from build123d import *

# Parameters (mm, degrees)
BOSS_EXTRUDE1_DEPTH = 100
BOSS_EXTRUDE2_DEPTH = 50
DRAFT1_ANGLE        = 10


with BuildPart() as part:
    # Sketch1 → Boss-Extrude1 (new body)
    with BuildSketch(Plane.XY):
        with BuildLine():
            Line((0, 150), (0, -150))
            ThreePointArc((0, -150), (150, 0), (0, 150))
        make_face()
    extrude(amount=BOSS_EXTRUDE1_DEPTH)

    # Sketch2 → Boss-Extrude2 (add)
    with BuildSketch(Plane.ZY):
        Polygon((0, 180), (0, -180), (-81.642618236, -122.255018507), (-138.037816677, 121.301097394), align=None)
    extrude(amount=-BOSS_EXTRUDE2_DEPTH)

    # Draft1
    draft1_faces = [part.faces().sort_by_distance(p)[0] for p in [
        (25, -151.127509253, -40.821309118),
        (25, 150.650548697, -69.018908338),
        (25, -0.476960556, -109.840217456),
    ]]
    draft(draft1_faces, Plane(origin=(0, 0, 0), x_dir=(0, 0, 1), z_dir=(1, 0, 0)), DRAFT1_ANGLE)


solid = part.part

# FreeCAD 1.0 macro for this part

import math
import FreeCAD as App
import Part
import Sketcher
from FreeCAD import Vector


def faces_at(feature, points):
    """Names of the faces that lie closest to the given points."""
    faces = feature.Shape.Faces
    near = lambda p: min(range(len(faces)), key=lambda i: faces[i].distToShape(Part.Vertex(*p))[0])
    return sorted({f"Face{near(p) + 1}" for p in points})


def add_polygon(sketch, points):
    """Adds a closed chain of lines whose ends are joined by coincident constraints."""
    first, n = sketch.GeometryCount, len(points)
    for a, b in zip(points, points[1:] + points[:1]):
        sketch.addGeometry(Part.LineSegment(App.Vector(*a, 0), App.Vector(*b, 0)), False)
    for i in range(n):
        sketch.addConstraint(Sketcher.Constraint("Coincident", first + i, 2, first + (i + 1) % n, 1))

doc = App.newDocument("Part")
body = doc.addObject("PartDesign::Body", "Body")

# Sketch on XY plane
sketch1 = doc.addObject("Sketcher::SketchObject", "Sketch")
body.addObject(sketch1)
sketch1.AttachmentSupport = (doc.XY_Plane, [""])
sketch1.MapMode = "FlatFace"
sketch1.addGeometry(Part.LineSegment(Vector(0, 150, 0), Vector(0, -150, 0)), False)
sketch1.addGeometry(Part.ArcOfCircle(Part.Circle(Vector(0, 0, 0), Vector(0, 0, 1), 150), math.radians(-90), math.radians(90)), False)
sketch1.addConstraint(Sketcher.Constraint("Coincident", 0, 1, 1, 2))
sketch1.addConstraint(Sketcher.Constraint("Coincident", 1, 1, 0, 2))
sketch1.addConstraint(Sketcher.Constraint("Vertical", 0))
sketch1.addConstraint(Sketcher.Constraint("Coincident", 1, 3, -1, 1))
sketch1.addConstraint(Sketcher.Constraint("PointOnObject", 0, 1, -2))
sketch1.addConstraint(Sketcher.Constraint("Radius", 1, 150.0))
pad1 = doc.addObject("PartDesign::Pad", "Pad")
body.addObject(pad1)
pad1.Profile = sketch1
pad1.Length = 100

# Sketch on YZ plane
sketch2 = doc.addObject("Sketcher::SketchObject", "Sketch001")
body.addObject(sketch2)
sketch2.AttachmentSupport = (doc.YZ_Plane, [""])
sketch2.MapMode = "FlatFace"
add_polygon(sketch2, [(-180, 0), (180, 0), (121.301097, -138.037817), (-122.255019, -81.642618)])  # lines 0-3
sketch2.addConstraint(Sketcher.Constraint("Horizontal", 0))
sketch2.addConstraint(Sketcher.Constraint("Symmetric", 0, 2, 3, 2, -1, 1))
sketch2.addConstraint(Sketcher.Constraint("DistanceX", 0, 1, 0, 2, 360.0))
sketch2.addConstraint(Sketcher.Constraint("Distance", 1, 150.0))
sketch2.addConstraint(Sketcher.Constraint("Distance", 2, 250.0))
sketch2.addConstraint(Sketcher.Constraint("Distance", 3, 100.0))
sketch2.addConstraint(Sketcher.Constraint("DistanceY", 1, 2, 2, 2, 56.395198))
pad2 = doc.addObject("PartDesign::Pad", "Pad001")
body.addObject(pad2)
pad2.Profile = sketch2
pad2.Length = 50
doc.recompute()

draft = doc.addObject("PartDesign::Draft", "Draft")
body.addObject(draft)
draft.Base = (pad2, faces_at(pad2, [(25, -151.128, -40.821), (25, 150.651, -69.019), (25, -0.477, -109.84)]))
draft.NeutralPlane = (doc.YZ_Plane, [""])
draft.Angle = 10
draft.Reversed = False

doc.recompute()
